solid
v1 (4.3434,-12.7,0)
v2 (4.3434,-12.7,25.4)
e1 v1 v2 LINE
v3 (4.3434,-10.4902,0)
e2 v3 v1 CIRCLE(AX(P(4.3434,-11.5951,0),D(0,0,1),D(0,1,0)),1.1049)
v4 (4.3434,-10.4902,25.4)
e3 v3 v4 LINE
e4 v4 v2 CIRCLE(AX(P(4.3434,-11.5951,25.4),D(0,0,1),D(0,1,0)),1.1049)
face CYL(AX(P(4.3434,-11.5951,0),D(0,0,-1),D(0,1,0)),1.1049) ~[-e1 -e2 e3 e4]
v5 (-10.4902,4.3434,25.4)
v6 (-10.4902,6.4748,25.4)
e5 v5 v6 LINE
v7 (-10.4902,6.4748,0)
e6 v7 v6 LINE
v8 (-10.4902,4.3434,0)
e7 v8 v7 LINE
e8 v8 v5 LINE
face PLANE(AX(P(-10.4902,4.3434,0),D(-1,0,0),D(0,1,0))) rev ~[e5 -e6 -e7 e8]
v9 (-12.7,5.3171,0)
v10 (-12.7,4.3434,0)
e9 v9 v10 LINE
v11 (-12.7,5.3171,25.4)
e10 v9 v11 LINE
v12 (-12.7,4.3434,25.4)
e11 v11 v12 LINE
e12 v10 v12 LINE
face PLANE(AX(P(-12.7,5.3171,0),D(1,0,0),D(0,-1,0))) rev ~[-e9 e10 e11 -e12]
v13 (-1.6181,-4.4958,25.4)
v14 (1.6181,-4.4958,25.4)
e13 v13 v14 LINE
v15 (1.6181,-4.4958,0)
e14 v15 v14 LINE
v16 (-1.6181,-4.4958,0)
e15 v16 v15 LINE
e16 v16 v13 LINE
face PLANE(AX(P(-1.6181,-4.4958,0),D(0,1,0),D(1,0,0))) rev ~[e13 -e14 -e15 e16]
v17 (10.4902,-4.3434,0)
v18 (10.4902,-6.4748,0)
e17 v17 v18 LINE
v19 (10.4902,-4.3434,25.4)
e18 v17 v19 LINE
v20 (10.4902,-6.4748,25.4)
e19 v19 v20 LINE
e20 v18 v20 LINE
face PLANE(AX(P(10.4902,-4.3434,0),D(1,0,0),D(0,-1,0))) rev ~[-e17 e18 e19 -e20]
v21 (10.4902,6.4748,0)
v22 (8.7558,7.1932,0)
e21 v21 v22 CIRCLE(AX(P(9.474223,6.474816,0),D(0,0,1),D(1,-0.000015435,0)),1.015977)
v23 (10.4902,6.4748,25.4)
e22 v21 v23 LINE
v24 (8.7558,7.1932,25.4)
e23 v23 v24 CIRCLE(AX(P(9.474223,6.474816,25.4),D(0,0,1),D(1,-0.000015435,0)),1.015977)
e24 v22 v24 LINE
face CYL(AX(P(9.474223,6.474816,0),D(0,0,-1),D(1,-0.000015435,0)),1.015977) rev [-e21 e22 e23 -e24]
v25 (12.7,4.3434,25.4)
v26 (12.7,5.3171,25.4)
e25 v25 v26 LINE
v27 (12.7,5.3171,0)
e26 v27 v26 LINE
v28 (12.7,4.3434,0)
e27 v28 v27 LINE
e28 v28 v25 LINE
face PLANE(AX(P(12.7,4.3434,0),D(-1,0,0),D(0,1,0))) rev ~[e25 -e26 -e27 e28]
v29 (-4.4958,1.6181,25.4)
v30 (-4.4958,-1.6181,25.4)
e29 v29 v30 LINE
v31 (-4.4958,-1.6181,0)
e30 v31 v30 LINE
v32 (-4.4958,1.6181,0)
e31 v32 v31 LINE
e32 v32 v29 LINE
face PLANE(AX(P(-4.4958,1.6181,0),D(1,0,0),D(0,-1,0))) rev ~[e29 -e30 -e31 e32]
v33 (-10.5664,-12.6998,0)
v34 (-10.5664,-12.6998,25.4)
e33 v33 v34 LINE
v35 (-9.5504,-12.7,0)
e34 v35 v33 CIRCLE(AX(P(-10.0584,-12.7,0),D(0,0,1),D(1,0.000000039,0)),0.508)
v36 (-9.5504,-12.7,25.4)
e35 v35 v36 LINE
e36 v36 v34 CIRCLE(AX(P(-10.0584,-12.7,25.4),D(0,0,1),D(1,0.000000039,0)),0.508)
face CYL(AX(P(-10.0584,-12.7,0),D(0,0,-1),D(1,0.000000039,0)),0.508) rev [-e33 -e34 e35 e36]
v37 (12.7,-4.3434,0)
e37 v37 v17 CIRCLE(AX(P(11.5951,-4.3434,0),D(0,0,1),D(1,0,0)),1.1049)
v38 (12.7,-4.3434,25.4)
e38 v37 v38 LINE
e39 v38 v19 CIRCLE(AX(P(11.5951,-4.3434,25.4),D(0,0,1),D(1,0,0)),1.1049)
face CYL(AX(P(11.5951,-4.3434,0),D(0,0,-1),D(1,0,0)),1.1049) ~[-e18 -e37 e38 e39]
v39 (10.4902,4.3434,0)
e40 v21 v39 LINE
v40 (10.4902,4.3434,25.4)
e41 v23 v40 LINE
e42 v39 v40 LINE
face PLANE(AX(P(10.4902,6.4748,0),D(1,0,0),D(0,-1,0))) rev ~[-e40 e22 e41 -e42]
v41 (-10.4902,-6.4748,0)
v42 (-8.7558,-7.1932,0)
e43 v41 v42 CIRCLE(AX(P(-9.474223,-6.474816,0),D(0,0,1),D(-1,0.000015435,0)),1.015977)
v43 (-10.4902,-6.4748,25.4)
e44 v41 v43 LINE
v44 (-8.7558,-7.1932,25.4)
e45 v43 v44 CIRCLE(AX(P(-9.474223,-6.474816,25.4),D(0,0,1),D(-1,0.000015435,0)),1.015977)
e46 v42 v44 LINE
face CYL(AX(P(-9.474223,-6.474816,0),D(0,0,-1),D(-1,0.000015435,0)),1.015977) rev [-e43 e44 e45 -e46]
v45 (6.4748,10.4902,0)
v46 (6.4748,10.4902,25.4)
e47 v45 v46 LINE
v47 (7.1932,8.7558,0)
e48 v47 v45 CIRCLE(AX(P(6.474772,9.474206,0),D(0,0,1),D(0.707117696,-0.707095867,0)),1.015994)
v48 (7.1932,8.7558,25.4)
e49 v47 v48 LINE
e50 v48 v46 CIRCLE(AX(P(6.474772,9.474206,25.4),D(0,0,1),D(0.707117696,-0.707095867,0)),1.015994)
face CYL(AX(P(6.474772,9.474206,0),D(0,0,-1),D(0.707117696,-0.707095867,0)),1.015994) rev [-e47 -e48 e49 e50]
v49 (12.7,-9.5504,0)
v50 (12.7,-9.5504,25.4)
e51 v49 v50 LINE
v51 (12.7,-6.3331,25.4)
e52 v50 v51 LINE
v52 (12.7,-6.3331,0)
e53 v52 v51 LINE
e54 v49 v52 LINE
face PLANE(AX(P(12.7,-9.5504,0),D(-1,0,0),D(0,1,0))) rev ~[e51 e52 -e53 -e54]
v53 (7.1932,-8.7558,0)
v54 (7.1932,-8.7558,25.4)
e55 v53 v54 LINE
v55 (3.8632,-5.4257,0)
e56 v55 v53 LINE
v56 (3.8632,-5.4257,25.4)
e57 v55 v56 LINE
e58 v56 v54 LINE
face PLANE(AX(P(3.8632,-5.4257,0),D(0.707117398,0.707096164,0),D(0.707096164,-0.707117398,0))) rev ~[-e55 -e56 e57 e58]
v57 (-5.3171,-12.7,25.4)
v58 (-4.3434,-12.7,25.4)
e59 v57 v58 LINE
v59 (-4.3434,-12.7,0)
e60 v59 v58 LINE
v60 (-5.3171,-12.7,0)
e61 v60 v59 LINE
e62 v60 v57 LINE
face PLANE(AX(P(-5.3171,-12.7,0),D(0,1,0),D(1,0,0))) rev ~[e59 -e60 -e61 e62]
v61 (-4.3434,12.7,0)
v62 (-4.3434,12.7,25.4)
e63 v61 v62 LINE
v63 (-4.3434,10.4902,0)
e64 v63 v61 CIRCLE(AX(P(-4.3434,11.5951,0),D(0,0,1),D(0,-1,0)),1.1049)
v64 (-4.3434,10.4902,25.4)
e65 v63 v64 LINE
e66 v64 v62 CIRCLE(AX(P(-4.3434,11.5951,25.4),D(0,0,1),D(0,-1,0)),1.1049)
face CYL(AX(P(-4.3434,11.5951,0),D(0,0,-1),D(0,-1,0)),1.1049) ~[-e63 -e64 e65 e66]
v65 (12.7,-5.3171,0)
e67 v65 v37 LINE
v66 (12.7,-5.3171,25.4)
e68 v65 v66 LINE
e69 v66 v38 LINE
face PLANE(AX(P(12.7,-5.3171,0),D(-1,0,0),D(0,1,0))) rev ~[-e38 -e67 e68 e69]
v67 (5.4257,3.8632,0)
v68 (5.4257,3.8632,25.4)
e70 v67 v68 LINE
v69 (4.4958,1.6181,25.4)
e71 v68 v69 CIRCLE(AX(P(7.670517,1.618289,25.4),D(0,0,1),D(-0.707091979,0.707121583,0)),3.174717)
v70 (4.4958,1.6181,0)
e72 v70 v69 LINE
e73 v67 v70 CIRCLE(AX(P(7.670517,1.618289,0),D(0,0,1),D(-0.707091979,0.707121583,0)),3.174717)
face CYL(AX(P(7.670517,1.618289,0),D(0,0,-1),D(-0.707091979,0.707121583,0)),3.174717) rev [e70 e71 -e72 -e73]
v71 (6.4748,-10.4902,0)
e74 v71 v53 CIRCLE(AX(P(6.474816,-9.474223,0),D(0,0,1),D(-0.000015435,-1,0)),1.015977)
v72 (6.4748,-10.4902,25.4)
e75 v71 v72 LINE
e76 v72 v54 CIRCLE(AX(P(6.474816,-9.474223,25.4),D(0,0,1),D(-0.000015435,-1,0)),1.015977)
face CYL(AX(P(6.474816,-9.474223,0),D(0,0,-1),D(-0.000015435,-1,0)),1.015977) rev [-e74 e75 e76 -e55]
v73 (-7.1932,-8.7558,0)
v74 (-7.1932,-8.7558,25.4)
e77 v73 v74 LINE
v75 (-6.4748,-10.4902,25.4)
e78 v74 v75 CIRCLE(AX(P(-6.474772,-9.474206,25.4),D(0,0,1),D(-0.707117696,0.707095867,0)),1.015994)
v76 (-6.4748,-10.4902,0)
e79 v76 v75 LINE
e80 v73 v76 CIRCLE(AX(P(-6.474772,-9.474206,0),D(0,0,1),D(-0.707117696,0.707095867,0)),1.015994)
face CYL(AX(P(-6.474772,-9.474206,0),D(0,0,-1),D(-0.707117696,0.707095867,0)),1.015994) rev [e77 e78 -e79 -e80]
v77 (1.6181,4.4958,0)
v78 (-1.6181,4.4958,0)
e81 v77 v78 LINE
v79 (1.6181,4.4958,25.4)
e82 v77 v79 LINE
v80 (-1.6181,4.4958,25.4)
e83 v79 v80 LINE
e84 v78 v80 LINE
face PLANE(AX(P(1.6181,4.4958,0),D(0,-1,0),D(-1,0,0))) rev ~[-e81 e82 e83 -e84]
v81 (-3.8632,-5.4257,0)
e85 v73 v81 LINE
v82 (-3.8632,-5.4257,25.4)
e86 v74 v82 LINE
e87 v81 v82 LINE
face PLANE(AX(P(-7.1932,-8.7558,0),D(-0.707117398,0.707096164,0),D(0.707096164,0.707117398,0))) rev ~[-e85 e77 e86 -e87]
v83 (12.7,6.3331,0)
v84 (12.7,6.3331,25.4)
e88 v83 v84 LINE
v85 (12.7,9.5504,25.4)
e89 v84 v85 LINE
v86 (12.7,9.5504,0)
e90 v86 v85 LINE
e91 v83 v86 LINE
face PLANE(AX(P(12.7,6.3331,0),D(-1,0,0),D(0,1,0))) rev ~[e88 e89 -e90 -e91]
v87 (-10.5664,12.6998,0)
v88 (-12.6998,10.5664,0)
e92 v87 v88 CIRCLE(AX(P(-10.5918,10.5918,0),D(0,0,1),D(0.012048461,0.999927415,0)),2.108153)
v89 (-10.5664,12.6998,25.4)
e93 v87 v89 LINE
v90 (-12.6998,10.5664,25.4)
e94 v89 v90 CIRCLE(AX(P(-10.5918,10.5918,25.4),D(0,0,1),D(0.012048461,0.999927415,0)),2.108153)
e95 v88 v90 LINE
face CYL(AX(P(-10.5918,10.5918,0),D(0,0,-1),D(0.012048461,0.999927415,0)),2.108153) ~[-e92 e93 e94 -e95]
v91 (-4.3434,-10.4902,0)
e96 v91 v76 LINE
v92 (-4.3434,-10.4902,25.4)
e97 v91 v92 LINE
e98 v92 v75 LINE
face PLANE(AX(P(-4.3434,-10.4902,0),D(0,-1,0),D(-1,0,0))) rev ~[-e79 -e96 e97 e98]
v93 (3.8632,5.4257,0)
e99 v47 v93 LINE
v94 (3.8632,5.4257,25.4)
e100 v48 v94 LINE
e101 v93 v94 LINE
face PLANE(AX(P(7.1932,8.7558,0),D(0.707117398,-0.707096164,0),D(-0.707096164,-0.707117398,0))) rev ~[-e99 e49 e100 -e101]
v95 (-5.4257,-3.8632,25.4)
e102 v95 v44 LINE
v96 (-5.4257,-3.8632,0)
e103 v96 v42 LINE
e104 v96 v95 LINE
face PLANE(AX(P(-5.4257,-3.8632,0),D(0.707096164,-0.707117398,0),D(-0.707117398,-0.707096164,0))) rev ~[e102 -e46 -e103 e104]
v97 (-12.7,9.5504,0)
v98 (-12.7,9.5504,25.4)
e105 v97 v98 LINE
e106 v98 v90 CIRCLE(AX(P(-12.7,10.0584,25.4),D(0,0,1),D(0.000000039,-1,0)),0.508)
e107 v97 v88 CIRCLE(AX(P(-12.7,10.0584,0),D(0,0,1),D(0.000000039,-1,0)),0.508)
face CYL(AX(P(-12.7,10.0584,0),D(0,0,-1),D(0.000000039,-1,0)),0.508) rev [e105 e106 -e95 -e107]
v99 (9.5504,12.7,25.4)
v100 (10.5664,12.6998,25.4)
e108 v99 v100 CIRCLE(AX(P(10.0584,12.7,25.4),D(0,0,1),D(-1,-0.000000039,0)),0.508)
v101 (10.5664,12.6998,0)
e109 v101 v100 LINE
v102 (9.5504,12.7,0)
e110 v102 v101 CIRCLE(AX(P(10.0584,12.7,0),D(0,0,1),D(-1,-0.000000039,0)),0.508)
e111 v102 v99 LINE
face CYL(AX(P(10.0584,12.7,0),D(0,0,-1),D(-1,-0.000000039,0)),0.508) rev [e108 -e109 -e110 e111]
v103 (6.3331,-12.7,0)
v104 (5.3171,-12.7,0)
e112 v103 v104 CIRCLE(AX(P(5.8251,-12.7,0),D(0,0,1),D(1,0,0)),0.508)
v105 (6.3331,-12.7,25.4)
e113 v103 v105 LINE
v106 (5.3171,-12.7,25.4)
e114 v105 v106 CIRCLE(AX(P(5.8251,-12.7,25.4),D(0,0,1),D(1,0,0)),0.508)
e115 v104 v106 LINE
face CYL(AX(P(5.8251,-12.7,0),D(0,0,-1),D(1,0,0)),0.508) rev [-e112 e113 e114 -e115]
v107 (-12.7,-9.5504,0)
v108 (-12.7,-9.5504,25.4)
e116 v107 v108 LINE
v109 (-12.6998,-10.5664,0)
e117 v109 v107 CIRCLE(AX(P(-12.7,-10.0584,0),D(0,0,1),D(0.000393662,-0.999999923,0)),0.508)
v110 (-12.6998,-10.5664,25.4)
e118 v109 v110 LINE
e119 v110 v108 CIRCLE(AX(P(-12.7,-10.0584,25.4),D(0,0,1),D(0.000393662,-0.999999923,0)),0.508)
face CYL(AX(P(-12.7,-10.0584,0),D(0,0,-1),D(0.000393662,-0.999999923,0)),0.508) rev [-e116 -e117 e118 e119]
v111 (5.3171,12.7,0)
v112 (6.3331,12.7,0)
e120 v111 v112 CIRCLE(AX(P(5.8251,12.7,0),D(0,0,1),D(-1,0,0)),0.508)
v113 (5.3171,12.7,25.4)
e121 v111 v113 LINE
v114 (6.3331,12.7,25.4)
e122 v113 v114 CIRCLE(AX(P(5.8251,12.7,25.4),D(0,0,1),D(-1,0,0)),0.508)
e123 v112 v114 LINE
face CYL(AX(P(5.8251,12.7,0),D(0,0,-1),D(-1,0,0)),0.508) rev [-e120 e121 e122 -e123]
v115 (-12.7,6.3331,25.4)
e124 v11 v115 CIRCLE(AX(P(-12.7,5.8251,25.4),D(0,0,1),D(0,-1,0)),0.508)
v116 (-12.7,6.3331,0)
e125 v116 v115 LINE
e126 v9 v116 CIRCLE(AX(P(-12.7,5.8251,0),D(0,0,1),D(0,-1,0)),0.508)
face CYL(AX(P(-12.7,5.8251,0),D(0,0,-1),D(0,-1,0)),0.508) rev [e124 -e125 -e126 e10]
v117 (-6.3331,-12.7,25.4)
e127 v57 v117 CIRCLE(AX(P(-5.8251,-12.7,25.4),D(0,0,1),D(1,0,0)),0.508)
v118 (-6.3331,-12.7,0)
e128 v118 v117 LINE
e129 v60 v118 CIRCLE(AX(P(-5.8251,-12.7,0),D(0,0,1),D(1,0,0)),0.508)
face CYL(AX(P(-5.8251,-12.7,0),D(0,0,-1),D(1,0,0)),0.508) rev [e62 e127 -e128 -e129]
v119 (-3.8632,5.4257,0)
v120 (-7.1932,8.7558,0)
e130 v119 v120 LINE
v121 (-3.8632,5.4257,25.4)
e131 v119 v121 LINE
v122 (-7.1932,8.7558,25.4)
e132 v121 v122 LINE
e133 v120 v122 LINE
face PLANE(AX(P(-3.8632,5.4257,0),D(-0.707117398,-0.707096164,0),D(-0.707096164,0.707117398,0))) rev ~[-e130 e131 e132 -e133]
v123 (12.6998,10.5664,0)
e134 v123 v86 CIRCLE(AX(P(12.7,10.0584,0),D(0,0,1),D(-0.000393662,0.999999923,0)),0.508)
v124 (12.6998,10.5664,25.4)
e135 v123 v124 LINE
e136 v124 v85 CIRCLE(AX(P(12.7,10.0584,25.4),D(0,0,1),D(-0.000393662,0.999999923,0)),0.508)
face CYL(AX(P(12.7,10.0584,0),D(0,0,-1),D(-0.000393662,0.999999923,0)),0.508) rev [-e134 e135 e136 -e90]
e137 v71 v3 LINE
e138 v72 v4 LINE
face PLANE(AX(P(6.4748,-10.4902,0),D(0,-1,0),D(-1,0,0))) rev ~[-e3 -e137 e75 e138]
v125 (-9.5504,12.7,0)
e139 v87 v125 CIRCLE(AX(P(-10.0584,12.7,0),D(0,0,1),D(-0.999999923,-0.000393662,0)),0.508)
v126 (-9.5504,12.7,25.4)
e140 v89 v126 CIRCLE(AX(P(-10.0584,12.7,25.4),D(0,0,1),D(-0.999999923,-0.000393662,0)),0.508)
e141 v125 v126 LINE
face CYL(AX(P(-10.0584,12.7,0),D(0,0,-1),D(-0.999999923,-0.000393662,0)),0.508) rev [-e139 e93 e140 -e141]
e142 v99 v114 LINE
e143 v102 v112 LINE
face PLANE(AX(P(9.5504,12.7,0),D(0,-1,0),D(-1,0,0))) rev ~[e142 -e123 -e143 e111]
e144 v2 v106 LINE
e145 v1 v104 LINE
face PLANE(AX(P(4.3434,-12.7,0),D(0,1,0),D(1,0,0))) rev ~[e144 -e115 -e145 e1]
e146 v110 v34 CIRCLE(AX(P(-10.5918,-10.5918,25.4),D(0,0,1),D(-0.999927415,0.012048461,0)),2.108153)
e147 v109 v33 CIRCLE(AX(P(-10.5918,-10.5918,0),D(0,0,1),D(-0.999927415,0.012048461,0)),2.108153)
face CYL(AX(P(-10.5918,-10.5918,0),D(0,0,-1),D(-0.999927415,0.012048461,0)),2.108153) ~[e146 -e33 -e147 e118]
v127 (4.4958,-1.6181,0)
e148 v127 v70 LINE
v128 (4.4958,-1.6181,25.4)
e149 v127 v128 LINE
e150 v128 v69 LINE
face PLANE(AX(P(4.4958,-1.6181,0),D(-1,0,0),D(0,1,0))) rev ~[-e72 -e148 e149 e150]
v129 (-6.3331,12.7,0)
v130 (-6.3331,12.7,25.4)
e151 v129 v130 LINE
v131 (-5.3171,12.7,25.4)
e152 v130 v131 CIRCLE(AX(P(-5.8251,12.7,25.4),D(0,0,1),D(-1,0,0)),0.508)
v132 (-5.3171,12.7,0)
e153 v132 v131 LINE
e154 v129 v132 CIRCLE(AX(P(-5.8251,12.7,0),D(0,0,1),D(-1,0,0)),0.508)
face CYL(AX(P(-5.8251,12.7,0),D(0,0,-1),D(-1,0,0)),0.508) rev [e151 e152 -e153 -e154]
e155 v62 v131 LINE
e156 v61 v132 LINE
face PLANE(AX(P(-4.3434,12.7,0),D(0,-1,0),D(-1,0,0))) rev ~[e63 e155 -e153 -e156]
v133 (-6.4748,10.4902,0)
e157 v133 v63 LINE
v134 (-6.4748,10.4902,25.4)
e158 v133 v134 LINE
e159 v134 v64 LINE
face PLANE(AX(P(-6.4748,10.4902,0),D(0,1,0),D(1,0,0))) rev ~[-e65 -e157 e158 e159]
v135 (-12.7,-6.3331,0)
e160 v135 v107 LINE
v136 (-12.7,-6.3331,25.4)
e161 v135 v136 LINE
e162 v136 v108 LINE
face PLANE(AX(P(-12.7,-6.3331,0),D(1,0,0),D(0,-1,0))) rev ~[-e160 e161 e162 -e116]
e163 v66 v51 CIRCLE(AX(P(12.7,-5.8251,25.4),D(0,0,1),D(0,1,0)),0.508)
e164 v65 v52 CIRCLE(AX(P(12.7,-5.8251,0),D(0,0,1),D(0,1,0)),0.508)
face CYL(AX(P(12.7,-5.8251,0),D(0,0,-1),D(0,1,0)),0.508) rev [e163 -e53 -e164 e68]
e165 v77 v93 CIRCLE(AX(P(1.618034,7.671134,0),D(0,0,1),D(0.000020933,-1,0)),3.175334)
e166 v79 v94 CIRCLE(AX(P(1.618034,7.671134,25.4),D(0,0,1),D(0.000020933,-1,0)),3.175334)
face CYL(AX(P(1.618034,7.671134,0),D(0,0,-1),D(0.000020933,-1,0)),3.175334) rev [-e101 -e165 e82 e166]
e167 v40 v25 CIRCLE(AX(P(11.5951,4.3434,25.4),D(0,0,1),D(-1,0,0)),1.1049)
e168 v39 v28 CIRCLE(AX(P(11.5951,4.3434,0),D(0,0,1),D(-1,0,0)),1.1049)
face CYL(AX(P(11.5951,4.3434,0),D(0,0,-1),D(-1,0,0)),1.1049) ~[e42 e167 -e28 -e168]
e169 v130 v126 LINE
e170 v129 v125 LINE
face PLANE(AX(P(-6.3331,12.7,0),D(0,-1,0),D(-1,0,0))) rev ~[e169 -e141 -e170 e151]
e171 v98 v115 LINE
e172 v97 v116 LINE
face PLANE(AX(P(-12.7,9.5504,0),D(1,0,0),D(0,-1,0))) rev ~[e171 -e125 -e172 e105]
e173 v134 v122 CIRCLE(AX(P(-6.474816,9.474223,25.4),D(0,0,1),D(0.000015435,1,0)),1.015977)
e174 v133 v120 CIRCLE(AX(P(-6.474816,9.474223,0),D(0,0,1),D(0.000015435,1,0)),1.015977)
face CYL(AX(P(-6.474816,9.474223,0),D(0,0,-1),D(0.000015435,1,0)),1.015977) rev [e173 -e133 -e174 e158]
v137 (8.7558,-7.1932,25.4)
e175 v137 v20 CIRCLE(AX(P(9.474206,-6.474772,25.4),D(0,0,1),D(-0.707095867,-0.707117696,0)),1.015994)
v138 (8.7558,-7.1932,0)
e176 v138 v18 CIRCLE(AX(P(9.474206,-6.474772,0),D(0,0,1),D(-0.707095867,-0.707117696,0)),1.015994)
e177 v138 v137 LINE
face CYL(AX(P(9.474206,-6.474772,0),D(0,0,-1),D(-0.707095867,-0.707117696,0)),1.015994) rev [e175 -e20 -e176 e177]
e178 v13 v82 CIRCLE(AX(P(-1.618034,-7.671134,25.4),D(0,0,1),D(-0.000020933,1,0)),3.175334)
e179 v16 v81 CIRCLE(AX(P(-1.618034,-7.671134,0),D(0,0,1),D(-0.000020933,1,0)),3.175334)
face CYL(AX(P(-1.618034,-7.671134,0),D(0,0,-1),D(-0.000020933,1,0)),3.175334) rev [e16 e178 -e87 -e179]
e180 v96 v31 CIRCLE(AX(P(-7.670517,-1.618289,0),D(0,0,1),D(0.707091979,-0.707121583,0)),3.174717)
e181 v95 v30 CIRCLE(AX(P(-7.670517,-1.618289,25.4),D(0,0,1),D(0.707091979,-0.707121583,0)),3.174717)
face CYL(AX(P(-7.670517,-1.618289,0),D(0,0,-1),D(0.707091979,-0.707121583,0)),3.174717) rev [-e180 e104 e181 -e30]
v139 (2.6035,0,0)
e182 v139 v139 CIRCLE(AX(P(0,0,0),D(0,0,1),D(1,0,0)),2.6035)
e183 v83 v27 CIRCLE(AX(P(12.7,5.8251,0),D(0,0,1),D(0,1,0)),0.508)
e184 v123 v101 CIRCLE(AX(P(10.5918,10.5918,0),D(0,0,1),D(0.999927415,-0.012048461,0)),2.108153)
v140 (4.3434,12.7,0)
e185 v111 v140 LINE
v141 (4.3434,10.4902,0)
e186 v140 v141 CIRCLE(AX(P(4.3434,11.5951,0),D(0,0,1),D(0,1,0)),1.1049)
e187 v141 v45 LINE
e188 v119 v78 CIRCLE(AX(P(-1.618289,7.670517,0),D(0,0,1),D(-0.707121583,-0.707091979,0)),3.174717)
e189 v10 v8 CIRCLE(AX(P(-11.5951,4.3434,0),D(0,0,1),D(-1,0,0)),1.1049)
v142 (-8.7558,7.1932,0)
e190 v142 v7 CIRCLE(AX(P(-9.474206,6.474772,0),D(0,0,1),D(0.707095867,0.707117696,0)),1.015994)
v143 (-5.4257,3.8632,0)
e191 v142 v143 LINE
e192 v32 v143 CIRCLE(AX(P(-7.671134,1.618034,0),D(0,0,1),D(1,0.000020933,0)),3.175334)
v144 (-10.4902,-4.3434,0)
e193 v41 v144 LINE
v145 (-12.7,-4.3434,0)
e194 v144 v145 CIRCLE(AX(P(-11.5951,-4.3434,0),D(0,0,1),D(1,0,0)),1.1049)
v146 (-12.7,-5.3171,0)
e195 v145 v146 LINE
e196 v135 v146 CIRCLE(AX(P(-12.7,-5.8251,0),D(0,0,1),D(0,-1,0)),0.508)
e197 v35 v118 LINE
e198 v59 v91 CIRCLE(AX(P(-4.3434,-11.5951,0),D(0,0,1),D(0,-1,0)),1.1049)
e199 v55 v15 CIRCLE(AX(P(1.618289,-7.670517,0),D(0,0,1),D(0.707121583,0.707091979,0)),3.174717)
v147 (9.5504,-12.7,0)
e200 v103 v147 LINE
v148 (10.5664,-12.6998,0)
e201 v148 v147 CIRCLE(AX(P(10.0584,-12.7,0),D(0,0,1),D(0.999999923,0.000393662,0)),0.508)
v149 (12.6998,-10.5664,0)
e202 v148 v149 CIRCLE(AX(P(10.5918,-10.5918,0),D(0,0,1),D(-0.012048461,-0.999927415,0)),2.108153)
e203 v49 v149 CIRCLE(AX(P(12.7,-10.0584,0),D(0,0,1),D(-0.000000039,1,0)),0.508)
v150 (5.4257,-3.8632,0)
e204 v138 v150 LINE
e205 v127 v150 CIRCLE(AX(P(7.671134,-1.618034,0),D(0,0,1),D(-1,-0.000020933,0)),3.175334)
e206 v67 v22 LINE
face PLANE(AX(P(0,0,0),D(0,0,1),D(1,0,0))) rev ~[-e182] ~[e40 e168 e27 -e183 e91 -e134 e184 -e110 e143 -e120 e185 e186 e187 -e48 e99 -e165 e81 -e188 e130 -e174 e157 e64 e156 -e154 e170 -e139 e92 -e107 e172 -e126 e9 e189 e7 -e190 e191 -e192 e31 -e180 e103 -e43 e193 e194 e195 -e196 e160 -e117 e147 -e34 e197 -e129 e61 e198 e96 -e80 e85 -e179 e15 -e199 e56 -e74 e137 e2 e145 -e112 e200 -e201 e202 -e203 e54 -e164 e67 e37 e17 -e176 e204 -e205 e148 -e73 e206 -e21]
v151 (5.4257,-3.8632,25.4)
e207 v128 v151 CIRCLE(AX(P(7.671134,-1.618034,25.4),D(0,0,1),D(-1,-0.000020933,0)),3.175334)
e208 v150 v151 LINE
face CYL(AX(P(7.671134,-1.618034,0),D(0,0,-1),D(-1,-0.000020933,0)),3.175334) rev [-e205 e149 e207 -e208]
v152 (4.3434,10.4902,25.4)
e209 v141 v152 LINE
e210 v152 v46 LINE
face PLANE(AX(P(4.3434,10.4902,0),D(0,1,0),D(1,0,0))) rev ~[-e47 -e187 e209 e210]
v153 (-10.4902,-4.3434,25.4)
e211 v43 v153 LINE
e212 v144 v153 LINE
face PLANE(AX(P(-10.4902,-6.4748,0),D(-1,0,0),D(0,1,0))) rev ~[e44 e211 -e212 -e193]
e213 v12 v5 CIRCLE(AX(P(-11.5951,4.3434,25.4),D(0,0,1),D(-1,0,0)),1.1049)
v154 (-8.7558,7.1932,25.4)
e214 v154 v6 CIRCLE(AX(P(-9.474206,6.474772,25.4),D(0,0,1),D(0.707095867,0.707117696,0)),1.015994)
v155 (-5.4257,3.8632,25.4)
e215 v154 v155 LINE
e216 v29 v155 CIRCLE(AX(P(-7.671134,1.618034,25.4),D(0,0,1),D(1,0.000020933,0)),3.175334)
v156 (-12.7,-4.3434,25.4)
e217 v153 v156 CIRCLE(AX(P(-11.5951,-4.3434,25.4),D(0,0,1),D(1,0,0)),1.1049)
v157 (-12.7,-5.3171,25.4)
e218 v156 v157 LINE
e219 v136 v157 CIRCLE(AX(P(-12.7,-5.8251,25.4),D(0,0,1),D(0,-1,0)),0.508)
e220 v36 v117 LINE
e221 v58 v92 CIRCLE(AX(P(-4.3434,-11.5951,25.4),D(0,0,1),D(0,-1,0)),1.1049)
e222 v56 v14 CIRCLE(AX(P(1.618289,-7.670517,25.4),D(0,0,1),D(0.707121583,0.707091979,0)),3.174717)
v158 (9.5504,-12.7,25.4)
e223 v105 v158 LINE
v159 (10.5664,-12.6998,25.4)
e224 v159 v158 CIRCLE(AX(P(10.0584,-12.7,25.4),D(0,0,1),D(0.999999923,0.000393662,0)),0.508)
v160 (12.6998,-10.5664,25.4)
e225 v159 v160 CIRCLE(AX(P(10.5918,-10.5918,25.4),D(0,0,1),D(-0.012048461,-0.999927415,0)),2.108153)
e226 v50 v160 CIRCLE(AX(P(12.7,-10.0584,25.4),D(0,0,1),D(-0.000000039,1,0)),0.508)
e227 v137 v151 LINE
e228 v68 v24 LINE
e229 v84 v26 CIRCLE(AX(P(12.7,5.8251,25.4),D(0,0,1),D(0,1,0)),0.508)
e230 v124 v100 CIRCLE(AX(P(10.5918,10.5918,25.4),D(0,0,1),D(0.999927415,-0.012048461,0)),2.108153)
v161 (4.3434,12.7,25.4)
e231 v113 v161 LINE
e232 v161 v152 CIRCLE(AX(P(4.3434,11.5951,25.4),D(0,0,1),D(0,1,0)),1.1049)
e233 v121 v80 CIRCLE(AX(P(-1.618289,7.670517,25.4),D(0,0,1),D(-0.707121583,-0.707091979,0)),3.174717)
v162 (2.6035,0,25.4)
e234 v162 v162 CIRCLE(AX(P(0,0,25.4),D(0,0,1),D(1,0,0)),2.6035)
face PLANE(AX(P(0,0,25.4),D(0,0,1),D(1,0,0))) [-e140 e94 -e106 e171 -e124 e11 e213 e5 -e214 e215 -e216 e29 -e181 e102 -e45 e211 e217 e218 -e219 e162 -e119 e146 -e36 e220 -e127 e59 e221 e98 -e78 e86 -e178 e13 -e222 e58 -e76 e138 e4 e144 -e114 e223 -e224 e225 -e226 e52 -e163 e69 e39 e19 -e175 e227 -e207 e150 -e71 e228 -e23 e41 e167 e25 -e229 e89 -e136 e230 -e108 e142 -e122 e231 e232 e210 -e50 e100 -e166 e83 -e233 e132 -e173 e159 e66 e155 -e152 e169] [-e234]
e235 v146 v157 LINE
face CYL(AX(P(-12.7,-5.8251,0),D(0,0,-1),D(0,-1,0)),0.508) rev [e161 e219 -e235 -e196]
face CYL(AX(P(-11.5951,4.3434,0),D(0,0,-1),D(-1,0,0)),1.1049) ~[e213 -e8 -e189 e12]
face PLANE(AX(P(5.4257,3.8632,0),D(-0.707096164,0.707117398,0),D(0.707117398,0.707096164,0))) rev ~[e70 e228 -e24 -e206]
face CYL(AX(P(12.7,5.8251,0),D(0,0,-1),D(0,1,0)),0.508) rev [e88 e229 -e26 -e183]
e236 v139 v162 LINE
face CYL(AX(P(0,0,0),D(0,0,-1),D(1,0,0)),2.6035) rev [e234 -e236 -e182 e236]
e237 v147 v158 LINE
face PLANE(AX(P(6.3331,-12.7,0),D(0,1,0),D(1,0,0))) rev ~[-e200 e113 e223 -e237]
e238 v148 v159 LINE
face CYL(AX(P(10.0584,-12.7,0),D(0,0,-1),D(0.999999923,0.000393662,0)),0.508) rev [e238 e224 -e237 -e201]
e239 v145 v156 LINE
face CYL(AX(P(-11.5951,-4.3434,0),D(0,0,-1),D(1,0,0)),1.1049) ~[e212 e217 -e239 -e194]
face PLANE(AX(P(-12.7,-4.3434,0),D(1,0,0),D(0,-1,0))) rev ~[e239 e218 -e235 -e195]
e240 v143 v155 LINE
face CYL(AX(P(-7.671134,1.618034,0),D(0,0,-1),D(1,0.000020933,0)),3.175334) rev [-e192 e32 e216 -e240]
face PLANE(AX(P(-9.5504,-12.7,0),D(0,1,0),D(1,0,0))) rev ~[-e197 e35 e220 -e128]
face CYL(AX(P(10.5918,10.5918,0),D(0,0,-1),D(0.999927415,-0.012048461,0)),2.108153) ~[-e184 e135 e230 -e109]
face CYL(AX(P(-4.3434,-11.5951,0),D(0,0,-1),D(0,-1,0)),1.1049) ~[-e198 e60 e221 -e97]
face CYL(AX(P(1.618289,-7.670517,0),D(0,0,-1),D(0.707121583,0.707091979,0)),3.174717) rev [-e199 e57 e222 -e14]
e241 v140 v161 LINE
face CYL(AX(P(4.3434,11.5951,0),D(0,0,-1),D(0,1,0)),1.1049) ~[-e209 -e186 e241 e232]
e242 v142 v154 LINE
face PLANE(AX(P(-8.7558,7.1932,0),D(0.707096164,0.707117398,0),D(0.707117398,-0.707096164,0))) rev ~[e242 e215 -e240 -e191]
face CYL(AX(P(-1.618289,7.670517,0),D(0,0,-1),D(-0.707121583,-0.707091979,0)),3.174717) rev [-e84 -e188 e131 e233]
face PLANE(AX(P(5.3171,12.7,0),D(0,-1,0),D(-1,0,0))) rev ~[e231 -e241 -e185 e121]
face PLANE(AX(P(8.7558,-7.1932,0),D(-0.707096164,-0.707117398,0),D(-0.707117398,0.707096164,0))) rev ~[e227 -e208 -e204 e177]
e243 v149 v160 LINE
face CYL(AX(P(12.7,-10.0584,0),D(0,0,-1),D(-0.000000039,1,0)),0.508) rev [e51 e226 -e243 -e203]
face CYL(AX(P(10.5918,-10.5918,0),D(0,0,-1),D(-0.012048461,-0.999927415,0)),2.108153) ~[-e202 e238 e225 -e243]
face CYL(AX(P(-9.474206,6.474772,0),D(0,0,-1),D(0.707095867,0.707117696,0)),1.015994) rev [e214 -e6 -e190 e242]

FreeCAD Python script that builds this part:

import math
import FreeCAD as App
import Part
import Sketcher
Q = App.Units.Quantity

doc = App.newDocument("Part")
body = doc.addObject("PartDesign::Body", "Body")

sketch1 = body.newObject("Sketcher::SketchObject", "Sketch")
sketch1.AttachmentSupport = (doc.getObject("XY_Plane"), [""])
sketch1.MapMode = "FlatFace"
sketch1.addGeometry(Part.ArcOfCircle(Part.Circle(App.Vector(-12.7, -10.1, 0), App.Vector(0, 0, 1), 0.5), math.radians(-90), math.radians(90)), False)
sketch1.addGeometry(Part.ArcOfCircle(Part.Circle(App.Vector(-10.6, -10.6, 0), App.Vector(0, 0, 1), 2.1), math.radians(179), math.radians(271)), False)
sketch1.addGeometry(Part.ArcOfCircle(Part.Circle(App.Vector(-10.1, -12.7, 0), App.Vector(0, 0, 1), 0.5), math.radians(0), math.radians(180)), False)
sketch1.addGeometry(Part.LineSegment(App.Vector(-9.6, -12.7, 0), App.Vector(-6.3, -12.7, 0)), False)
sketch1.addGeometry(Part.ArcOfCircle(Part.Circle(App.Vector(-5.8, -12.7, 0), App.Vector(0, 0, 1), 0.5), math.radians(0), math.radians(180)), False)
sketch1.addGeometry(Part.LineSegment(App.Vector(-5.3, -12.7, 0), App.Vector(-4.3, -12.7, 0)), False)
sketch1.addGeometry(Part.ArcOfCircle(Part.Circle(App.Vector(-4.3, -11.6, 0), App.Vector(0, 0, 1), 1.1), math.radians(-90), math.radians(90)), False)
sketch1.addGeometry(Part.LineSegment(App.Vector(-4.3, -10.5, 0), App.Vector(-6.5, -10.5, 0)), False)
sketch1.addGeometry(Part.ArcOfCircle(Part.Circle(App.Vector(-6.5, -9.5, 0), App.Vector(0, 0, 1), 1), math.radians(135), math.radians(270)), False)
sketch1.addGeometry(Part.LineSegment(App.Vector(-7.2, -8.8, 0), App.Vector(-3.9, -5.4, 0)), False)
sketch1.addGeometry(Part.ArcOfCircle(Part.Circle(App.Vector(-1.6, -7.7, 0), App.Vector(0, 0, 1), 3.2), math.radians(90), math.radians(135)), False)
sketch1.addGeometry(Part.LineSegment(App.Vector(-1.6, -4.5, 0), App.Vector(1.6, -4.5, 0)), False)
sketch1.addGeometry(Part.ArcOfCircle(Part.Circle(App.Vector(1.6, -7.7, 0), App.Vector(0, 0, 1), 3.2), math.radians(45), math.radians(90)), False)
sketch1.addGeometry(Part.LineSegment(App.Vector(3.9, -5.4, 0), App.Vector(7.2, -8.8, 0)), False)
sketch1.addGeometry(Part.ArcOfCircle(Part.Circle(App.Vector(6.5, -9.5, 0), App.Vector(0, 0, 1), 1), math.radians(-90), math.radians(45)), False)
sketch1.addGeometry(Part.LineSegment(App.Vector(6.5, -10.5, 0), App.Vector(4.3, -10.5, 0)), False)
sketch1.addGeometry(Part.ArcOfCircle(Part.Circle(App.Vector(4.3, -11.6, 0), App.Vector(0, 0, 1), 1.1), math.radians(90), math.radians(270)), False)
sketch1.addGeometry(Part.LineSegment(App.Vector(4.3, -12.7, 0), App.Vector(5.3, -12.7, 0)), False)
sketch1.addGeometry(Part.ArcOfCircle(Part.Circle(App.Vector(5.8, -12.7, 0), App.Vector(0, 0, 1), 0.5), math.radians(0), math.radians(180)), False)
sketch1.addGeometry(Part.LineSegment(App.Vector(6.3, -12.7, 0), App.Vector(9.6, -12.7, 0)), False)
sketch1.addGeometry(Part.ArcOfCircle(Part.Circle(App.Vector(10.1, -12.7, 0), App.Vector(0, 0, 1), 0.5), math.radians(0), math.radians(180)), False)
sketch1.addGeometry(Part.ArcOfCircle(Part.Circle(App.Vector(10.6, -10.6, 0), App.Vector(0, 0, 1), 2.1), math.radians(-91), math.radians(1)), False)
sketch1.addGeometry(Part.ArcOfCircle(Part.Circle(App.Vector(12.7, -10.1, 0), App.Vector(0, 0, 1), 0.5), math.radians(90), math.radians(270)), False)
sketch1.addGeometry(Part.LineSegment(App.Vector(12.7, -9.6, 0), App.Vector(12.7, -6.3, 0)), False)
sketch1.addGeometry(Part.ArcOfCircle(Part.Circle(App.Vector(12.7, -5.8, 0), App.Vector(0, 0, 1), 0.5), math.radians(90), math.radians(270)), False)
sketch1.addGeometry(Part.LineSegment(App.Vector(12.7, -5.3, 0), App.Vector(12.7, -4.3, 0)), False)
sketch1.addGeometry(Part.ArcOfCircle(Part.Circle(App.Vector(11.6, -4.3, 0), App.Vector(0, 0, 1), 1.1), math.radians(0), math.radians(180)), False)
sketch1.addGeometry(Part.LineSegment(App.Vector(10.5, -4.3, 0), App.Vector(10.5, -6.5, 0)), False)
sketch1.addGeometry(Part.ArcOfCircle(Part.Circle(App.Vector(9.5, -6.5, 0), App.Vector(0, 0, 1), 1), math.radians(-135), math.radians(0)), False)
sketch1.addGeometry(Part.LineSegment(App.Vector(8.8, -7.2, 0), App.Vector(5.4, -3.9, 0)), False)
sketch1.addGeometry(Part.ArcOfCircle(Part.Circle(App.Vector(7.7, -1.6, 0), App.Vector(0, 0, 1), 3.2), math.radians(180), math.radians(225)), False)
sketch1.addGeometry(Part.LineSegment(App.Vector(4.5, -1.6, 0), App.Vector(4.5, 1.6, 0)), False)
sketch1.addGeometry(Part.ArcOfCircle(Part.Circle(App.Vector(7.7, 1.6, 0), App.Vector(0, 0, 1), 3.2), math.radians(135), math.radians(180)), False)
sketch1.addGeometry(Part.LineSegment(App.Vector(5.4, 3.9, 0), App.Vector(8.8, 7.2, 0)), False)
sketch1.addGeometry(Part.ArcOfCircle(Part.Circle(App.Vector(9.5, 6.5, 0), App.Vector(0, 0, 1), 1), math.radians(0), math.radians(135)), False)
sketch1.addGeometry(Part.LineSegment(App.Vector(10.5, 6.5, 0), App.Vector(10.5, 4.3, 0)), False)
sketch1.addGeometry(Part.ArcOfCircle(Part.Circle(App.Vector(11.6, 4.3, 0), App.Vector(0, 0, 1), 1.1), math.radians(180), math.radians(360)), False)
sketch1.addGeometry(Part.LineSegment(App.Vector(12.7, 4.3, 0), App.Vector(12.7, 5.3, 0)), False)
sketch1.addGeometry(Part.ArcOfCircle(Part.Circle(App.Vector(12.7, 5.8, 0), App.Vector(0, 0, 1), 0.5), math.radians(90), math.radians(270)), False)
sketch1.addGeometry(Part.LineSegment(App.Vector(12.7, 6.3, 0), App.Vector(12.7, 9.6, 0)), False)
sketch1.addGeometry(Part.ArcOfCircle(Part.Circle(App.Vector(12.7, 10.1, 0), App.Vector(0, 0, 1), 0.5), math.radians(90), math.radians(270)), False)
sketch1.addGeometry(Part.ArcOfCircle(Part.Circle(App.Vector(10.6, 10.6, 0), App.Vector(0, 0, 1), 2.1), math.radians(-1), math.radians(91)), False)
sketch1.addGeometry(Part.ArcOfCircle(Part.Circle(App.Vector(10.1, 12.7, 0), App.Vector(0, 0, 1), 0.5), math.radians(180), math.radians(360)), False)
sketch1.addGeometry(Part.LineSegment(App.Vector(9.6, 12.7, 0), App.Vector(6.3, 12.7, 0)), False)
sketch1.addGeometry(Part.ArcOfCircle(Part.Circle(App.Vector(5.8, 12.7, 0), App.Vector(0, 0, 1), 0.5), math.radians(180), math.radians(360)), False)
sketch1.addGeometry(Part.LineSegment(App.Vector(5.3, 12.7, 0), App.Vector(4.3, 12.7, 0)), False)
sketch1.addGeometry(Part.ArcOfCircle(Part.Circle(App.Vector(4.3, 11.6, 0), App.Vector(0, 0, 1), 1.1), math.radians(90), math.radians(270)), False)
sketch1.addGeometry(Part.LineSegment(App.Vector(4.3, 10.5, 0), App.Vector(6.5, 10.5, 0)), False)
sketch1.addGeometry(Part.ArcOfCircle(Part.Circle(App.Vector(6.5, 9.5, 0), App.Vector(0, 0, 1), 1), math.radians(-45), math.radians(90)), False)
sketch1.addGeometry(Part.LineSegment(App.Vector(7.2, 8.8, 0), App.Vector(3.9, 5.4, 0)), False)
sketch1.addGeometry(Part.ArcOfCircle(Part.Circle(App.Vector(1.6, 7.7, 0), App.Vector(0, 0, 1), 3.2), math.radians(-90), math.radians(-45)), False)
sketch1.addGeometry(Part.LineSegment(App.Vector(1.6, 4.5, 0), App.Vector(-1.6, 4.5, 0)), False)
sketch1.addGeometry(Part.ArcOfCircle(Part.Circle(App.Vector(-1.6, 7.7, 0), App.Vector(0, 0, 1), 3.2), math.radians(-135), math.radians(-90)), False)
sketch1.addGeometry(Part.LineSegment(App.Vector(-3.9, 5.4, 0), App.Vector(-7.2, 8.8, 0)), False)
sketch1.addGeometry(Part.ArcOfCircle(Part.Circle(App.Vector(-6.5, 9.5, 0), App.Vector(0, 0, 1), 1), math.radians(90), math.radians(225)), False)
sketch1.addGeometry(Part.LineSegment(App.Vector(-6.5, 10.5, 0), App.Vector(-4.3, 10.5, 0)), False)
sketch1.addGeometry(Part.ArcOfCircle(Part.Circle(App.Vector(-4.3, 11.6, 0), App.Vector(0, 0, 1), 1.1), math.radians(-90), math.radians(90)), False)
sketch1.addGeometry(Part.LineSegment(App.Vector(-4.3, 12.7, 0), App.Vector(-5.3, 12.7, 0)), False)
sketch1.addGeometry(Part.ArcOfCircle(Part.Circle(App.Vector(-5.8, 12.7, 0), App.Vector(0, 0, 1), 0.5), math.radians(180), math.radians(360)), False)
sketch1.addGeometry(Part.LineSegment(App.Vector(-6.3, 12.7, 0), App.Vector(-9.6, 12.7, 0)), False)
sketch1.addGeometry(Part.ArcOfCircle(Part.Circle(App.Vector(-10.1, 12.7, 0), App.Vector(0, 0, 1), 0.5), math.radians(-180), math.radians(0)), False)
sketch1.addGeometry(Part.ArcOfCircle(Part.Circle(App.Vector(-10.6, 10.6, 0), App.Vector(0, 0, 1), 2.1), math.radians(89), math.radians(181)), False)
sketch1.addGeometry(Part.ArcOfCircle(Part.Circle(App.Vector(-12.7, 10.1, 0), App.Vector(0, 0, 1), 0.5), math.radians(-90), math.radians(90)), False)
sketch1.addGeometry(Part.LineSegment(App.Vector(-12.7, 9.6, 0), App.Vector(-12.7, 6.3, 0)), False)
sketch1.addGeometry(Part.ArcOfCircle(Part.Circle(App.Vector(-12.7, 5.8, 0), App.Vector(0, 0, 1), 0.5), math.radians(-90), math.radians(90)), False)
sketch1.addGeometry(Part.LineSegment(App.Vector(-12.7, 5.3, 0), App.Vector(-12.7, 4.3, 0)), False)
sketch1.addGeometry(Part.ArcOfCircle(Part.Circle(App.Vector(-11.6, 4.3, 0), App.Vector(0, 0, 1), 1.1), math.radians(180), math.radians(360)), False)
sketch1.addGeometry(Part.LineSegment(App.Vector(-10.5, 4.3, 0), App.Vector(-10.5, 6.5, 0)), False)
sketch1.addGeometry(Part.ArcOfCircle(Part.Circle(App.Vector(-9.5, 6.5, 0), App.Vector(0, 0, 1), 1), math.radians(45), math.radians(180)), False)
sketch1.addGeometry(Part.LineSegment(App.Vector(-8.8, 7.2, 0), App.Vector(-5.4, 3.9, 0)), False)
sketch1.addGeometry(Part.ArcOfCircle(Part.Circle(App.Vector(-7.7, 1.6, 0), App.Vector(0, 0, 1), 3.2), math.radians(0), math.radians(45)), False)
sketch1.addGeometry(Part.LineSegment(App.Vector(-4.5, 1.6, 0), App.Vector(-4.5, -1.6, 0)), False)
sketch1.addGeometry(Part.ArcOfCircle(Part.Circle(App.Vector(-7.7, -1.6, 0), App.Vector(0, 0, 1), 3.2), math.radians(-45), math.radians(0)), False)
sketch1.addGeometry(Part.LineSegment(App.Vector(-5.4, -3.9, 0), App.Vector(-8.8, -7.2, 0)), False)
sketch1.addGeometry(Part.ArcOfCircle(Part.Circle(App.Vector(-9.5, -6.5, 0), App.Vector(0, 0, 1), 1), math.radians(180), math.radians(315)), False)
sketch1.addGeometry(Part.LineSegment(App.Vector(-10.5, -6.5, 0), App.Vector(-10.5, -4.3, 0)), False)
sketch1.addGeometry(Part.ArcOfCircle(Part.Circle(App.Vector(-11.6, -4.3, 0), App.Vector(0, 0, 1), 1.1), math.radians(0), math.radians(180)), False)
sketch1.addGeometry(Part.LineSegment(App.Vector(-12.7, -4.3, 0), App.Vector(-12.7, -5.3, 0)), False)
sketch1.addGeometry(Part.ArcOfCircle(Part.Circle(App.Vector(-12.7, -5.8, 0), App.Vector(0, 0, 1), 0.5), math.radians(-90), math.radians(90)), False)
sketch1.addGeometry(Part.LineSegment(App.Vector(-12.7, -6.3, 0), App.Vector(-12.7, -9.6, 0)), False)
sketch1.addGeometry(Part.Circle(App.Vector(0, 0, 0), App.Vector(0, 0, 1), 2.6), False)
sketch1.addConstraint(Sketcher.Constraint("Coincident", 0, 1, 1, 1))
sketch1.addConstraint(Sketcher.Constraint("Coincident", 1, 2, 2, 2))
sketch1.addConstraint(Sketcher.Constraint("Coincident", 2, 1, 3, 1))
sketch1.addConstraint(Sketcher.Constraint("Coincident", 3, 2, 4, 2))
sketch1.addConstraint(Sketcher.Constraint("Coincident", 4, 1, 5, 1))
sketch1.addConstraint(Sketcher.Constraint("Tangent", 5, 2, 6, 1))
sketch1.addConstraint(Sketcher.Constraint("Tangent", 6, 2, 7, 1))
sketch1.addConstraint(Sketcher.Constraint("Tangent", 7, 2, 8, 2))
sketch1.addConstraint(Sketcher.Constraint("Tangent", 8, 1, 9, 1))
sketch1.addConstraint(Sketcher.Constraint("Tangent", 9, 2, 10, 2))
sketch1.addConstraint(Sketcher.Constraint("Tangent", 10, 1, 11, 1))
sketch1.addConstraint(Sketcher.Constraint("Tangent", 11, 2, 12, 2))
sketch1.addConstraint(Sketcher.Constraint("Tangent", 12, 1, 13, 1))
sketch1.addConstraint(Sketcher.Constraint("Tangent", 13, 2, 14, 2))
sketch1.addConstraint(Sketcher.Constraint("Tangent", 14, 1, 15, 1))
sketch1.addConstraint(Sketcher.Constraint("Tangent", 15, 2, 16, 1))
sketch1.addConstraint(Sketcher.Constraint("Tangent", 16, 2, 17, 1))
sketch1.addConstraint(Sketcher.Constraint("Coincident", 17, 2, 18, 2))
sketch1.addConstraint(Sketcher.Constraint("Coincident", 18, 1, 19, 1))
sketch1.addConstraint(Sketcher.Constraint("Coincident", 19, 2, 20, 2))
sketch1.addConstraint(Sketcher.Constraint("Coincident", 20, 1, 21, 1))
sketch1.addConstraint(Sketcher.Constraint("Coincident", 21, 2, 22, 2))
sketch1.addConstraint(Sketcher.Constraint("Coincident", 22, 1, 23, 1))
sketch1.addConstraint(Sketcher.Constraint("Coincident", 23, 2, 24, 2))
sketch1.addConstraint(Sketcher.Constraint("Coincident", 24, 1, 25, 1))
sketch1.addConstraint(Sketcher.Constraint("Tangent", 25, 2, 26, 1))
sketch1.addConstraint(Sketcher.Constraint("Tangent", 26, 2, 27, 1))
sketch1.addConstraint(Sketcher.Constraint("Tangent", 27, 2, 28, 2))
sketch1.addConstraint(Sketcher.Constraint("Tangent", 28, 1, 29, 1))
sketch1.addConstraint(Sketcher.Constraint("Tangent", 29, 2, 30, 2))
sketch1.addConstraint(Sketcher.Constraint("Tangent", 30, 1, 31, 1))
sketch1.addConstraint(Sketcher.Constraint("Tangent", 31, 2, 32, 2))
sketch1.addConstraint(Sketcher.Constraint("Tangent", 32, 1, 33, 1))
sketch1.addConstraint(Sketcher.Constraint("Tangent", 33, 2, 34, 2))
sketch1.addConstraint(Sketcher.Constraint("Tangent", 34, 1, 35, 1))
sketch1.addConstraint(Sketcher.Constraint("Tangent", 35, 2, 36, 1))
sketch1.addConstraint(Sketcher.Constraint("Tangent", 36, 2, 37, 1))
sketch1.addConstraint(Sketcher.Constraint("Coincident", 37, 2, 38, 2))
sketch1.addConstraint(Sketcher.Constraint("Coincident", 38, 1, 39, 1))
sketch1.addConstraint(Sketcher.Constraint("Coincident", 39, 2, 40, 2))
sketch1.addConstraint(Sketcher.Constraint("Coincident", 40, 1, 41, 1))
sketch1.addConstraint(Sketcher.Constraint("Coincident", 41, 2, 42, 2))
sketch1.addConstraint(Sketcher.Constraint("Coincident", 42, 1, 43, 1))
sketch1.addConstraint(Sketcher.Constraint("Coincident", 43, 2, 44, 2))
sketch1.addConstraint(Sketcher.Constraint("Coincident", 44, 1, 45, 1))
sketch1.addConstraint(Sketcher.Constraint("Tangent", 45, 2, 46, 1))
sketch1.addConstraint(Sketcher.Constraint("Tangent", 46, 2, 47, 1))
sketch1.addConstraint(Sketcher.Constraint("Tangent", 47, 2, 48, 2))
sketch1.addConstraint(Sketcher.Constraint("Tangent", 48, 1, 49, 1))
sketch1.addConstraint(Sketcher.Constraint("Tangent", 49, 2, 50, 2))
sketch1.addConstraint(Sketcher.Constraint("Tangent", 50, 1, 51, 1))
sketch1.addConstraint(Sketcher.Constraint("Tangent", 51, 2, 52, 2))
sketch1.addConstraint(Sketcher.Constraint("Tangent", 52, 1, 53, 1))
sketch1.addConstraint(Sketcher.Constraint("Tangent", 53, 2, 54, 2))
sketch1.addConstraint(Sketcher.Constraint("Tangent", 54, 1, 55, 1))
sketch1.addConstraint(Sketcher.Constraint("Tangent", 55, 2, 56, 1))
sketch1.addConstraint(Sketcher.Constraint("Tangent", 56, 2, 57, 1))
sketch1.addConstraint(Sketcher.Constraint("Coincident", 57, 2, 58, 2))
sketch1.addConstraint(Sketcher.Constraint("Coincident", 58, 1, 59, 1))
sketch1.addConstraint(Sketcher.Constraint("Coincident", 59, 2, 60, 2))
sketch1.addConstraint(Sketcher.Constraint("Coincident", 60, 1, 61, 1))
sketch1.addConstraint(Sketcher.Constraint("Coincident", 61, 2, 62, 2))
sketch1.addConstraint(Sketcher.Constraint("Coincident", 62, 1, 63, 1))
sketch1.addConstraint(Sketcher.Constraint("Coincident", 63, 2, 64, 2))
sketch1.addConstraint(Sketcher.Constraint("Coincident", 64, 1, 65, 1))
sketch1.addConstraint(Sketcher.Constraint("Tangent", 65, 2, 66, 1))
sketch1.addConstraint(Sketcher.Constraint("Tangent", 66, 2, 67, 1))
sketch1.addConstraint(Sketcher.Constraint("Tangent", 67, 2, 68, 2))
sketch1.addConstraint(Sketcher.Constraint("Tangent", 68, 1, 69, 1))
sketch1.addConstraint(Sketcher.Constraint("Tangent", 69, 2, 70, 2))
sketch1.addConstraint(Sketcher.Constraint("Tangent", 70, 1, 71, 1))
sketch1.addConstraint(Sketcher.Constraint("Tangent", 71, 2, 72, 2))
sketch1.addConstraint(Sketcher.Constraint("Tangent", 72, 1, 73, 1))
sketch1.addConstraint(Sketcher.Constraint("Tangent", 73, 2, 74, 2))
sketch1.addConstraint(Sketcher.Constraint("Tangent", 74, 1, 75, 1))
sketch1.addConstraint(Sketcher.Constraint("Tangent", 75, 2, 76, 1))
sketch1.addConstraint(Sketcher.Constraint("Tangent", 76, 2, 77, 1))
sketch1.addConstraint(Sketcher.Constraint("Coincident", 77, 2, 78, 2))
sketch1.addConstraint(Sketcher.Constraint("Coincident", 78, 1, 79, 1))
sketch1.addConstraint(Sketcher.Constraint("Coincident", 79, 2, 0, 2))
sketch1.addConstraint(Sketcher.Constraint("Horizontal", 3))
sketch1.addConstraint(Sketcher.Constraint("Horizontal", 5))
sketch1.addConstraint(Sketcher.Constraint("Horizontal", 7))
sketch1.addConstraint(Sketcher.Constraint("Horizontal", 11))
sketch1.addConstraint(Sketcher.Constraint("Horizontal", 15))
sketch1.addConstraint(Sketcher.Constraint("Horizontal", 17))
sketch1.addConstraint(Sketcher.Constraint("Horizontal", 19))
sketch1.addConstraint(Sketcher.Constraint("Vertical", 23))
sketch1.addConstraint(Sketcher.Constraint("Vertical", 25))
sketch1.addConstraint(Sketcher.Constraint("Vertical", 27))
sketch1.addConstraint(Sketcher.Constraint("Vertical", 31))
sketch1.addConstraint(Sketcher.Constraint("Vertical", 35))
sketch1.addConstraint(Sketcher.Constraint("Vertical", 37))
sketch1.addConstraint(Sketcher.Constraint("Vertical", 39))
sketch1.addConstraint(Sketcher.Constraint("Horizontal", 43))
sketch1.addConstraint(Sketcher.Constraint("Horizontal", 45))
sketch1.addConstraint(Sketcher.Constraint("Horizontal", 47))
sketch1.addConstraint(Sketcher.Constraint("Horizontal", 51))
sketch1.addConstraint(Sketcher.Constraint("Horizontal", 55))
sketch1.addConstraint(Sketcher.Constraint("Horizontal", 57))
sketch1.addConstraint(Sketcher.Constraint("Horizontal", 59))
sketch1.addConstraint(Sketcher.Constraint("Vertical", 63))
sketch1.addConstraint(Sketcher.Constraint("Vertical", 65))
sketch1.addConstraint(Sketcher.Constraint("Vertical", 67))
sketch1.addConstraint(Sketcher.Constraint("Vertical", 71))
sketch1.addConstraint(Sketcher.Constraint("Vertical", 75))
sketch1.addConstraint(Sketcher.Constraint("Vertical", 77))
sketch1.addConstraint(Sketcher.Constraint("Vertical", 79))
sketch1.addConstraint(Sketcher.Constraint("Coincident", 80, 3, -1, 1))
sketch1.addConstraint(Sketcher.Constraint("Equal", 0, 2))
sketch1.addConstraint(Sketcher.Constraint("Equal", 2, 4))
sketch1.addConstraint(Sketcher.Constraint("Equal", 10, 12))
sketch1.addConstraint(Sketcher.Constraint("Equal", 8, 14))
sketch1.addConstraint(Sketcher.Constraint("Equal", 6, 16))
sketch1.addConstraint(Sketcher.Constraint("Equal", 4, 18))
sketch1.addConstraint(Sketcher.Constraint("Equal", 18, 20))
sketch1.addConstraint(Sketcher.Constraint("Equal", 1, 21))
sketch1.addConstraint(Sketcher.Constraint("Equal", 20, 22))
sketch1.addConstraint(Sketcher.Constraint("Equal", 22, 24))
sketch1.addConstraint(Sketcher.Constraint("Equal", 16, 26))
sketch1.addConstraint(Sketcher.Constraint("Equal", 14, 28))
sketch1.addConstraint(Sketcher.Constraint("Equal", 12, 30))
sketch1.addConstraint(Sketcher.Constraint("Equal", 30, 32))
sketch1.addConstraint(Sketcher.Constraint("Equal", 28, 34))
sketch1.addConstraint(Sketcher.Constraint("Equal", 26, 36))
sketch1.addConstraint(Sketcher.Constraint("Equal", 24, 38))
sketch1.addConstraint(Sketcher.Constraint("Equal", 38, 40))
sketch1.addConstraint(Sketcher.Constraint("Equal", 21, 41))
sketch1.addConstraint(Sketcher.Constraint("Equal", 40, 42))
sketch1.addConstraint(Sketcher.Constraint("Equal", 42, 44))
sketch1.addConstraint(Sketcher.Constraint("Equal", 36, 46))
sketch1.addConstraint(Sketcher.Constraint("Equal", 34, 48))
sketch1.addConstraint(Sketcher.Constraint("Equal", 32, 50))
sketch1.addConstraint(Sketcher.Constraint("Equal", 50, 52))
sketch1.addConstraint(Sketcher.Constraint("Equal", 48, 54))
sketch1.addConstraint(Sketcher.Constraint("Equal", 46, 56))
sketch1.addConstraint(Sketcher.Constraint("Equal", 44, 58))
sketch1.addConstraint(Sketcher.Constraint("Equal", 58, 60))
sketch1.addConstraint(Sketcher.Constraint("Equal", 41, 61))
sketch1.addConstraint(Sketcher.Constraint("Equal", 60, 62))
sketch1.addConstraint(Sketcher.Constraint("Equal", 62, 64))
sketch1.addConstraint(Sketcher.Constraint("Equal", 56, 66))
sketch1.addConstraint(Sketcher.Constraint("Equal", 54, 68))
sketch1.addConstraint(Sketcher.Constraint("Equal", 52, 70))
sketch1.addConstraint(Sketcher.Constraint("Equal", 70, 72))
sketch1.addConstraint(Sketcher.Constraint("Equal", 68, 74))
sketch1.addConstraint(Sketcher.Constraint("Equal", 66, 76))
sketch1.addConstraint(Sketcher.Constraint("Equal", 64, 78))
sketch1.addConstraint(Sketcher.Constraint("Symmetric", 0, 3, 40, 3, -1, 1))
sketch1.addConstraint(Sketcher.Constraint("Symmetric", 1, 3, 41, 3, -1, 1))
sketch1.addConstraint(Sketcher.Constraint("Symmetric", 2, 3, 42, 3, -1, 1))
sketch1.addConstraint(Sketcher.Constraint("Symmetric", 4, 3, 44, 3, -1, 1))
sketch1.addConstraint(Sketcher.Constraint("Symmetric", 6, 3, 46, 3, -1, 1))
sketch1.addConstraint(Sketcher.Constraint("Symmetric", 10, 3, 50, 3, -1, 1))
sketch1.addConstraint(Sketcher.Constraint("Symmetric", 14, 3, 54, 3, -1, 1))
sketch1.addConstraint(Sketcher.Constraint("Symmetric", 18, 3, 58, 3, -1, 1))
sketch1.addConstraint(Sketcher.Constraint("Symmetric", 20, 3, 60, 3, -1, 1))
sketch1.addConstraint(Sketcher.Constraint("Symmetric", 21, 3, 61, 3, -1, 1))
sketch1.addConstraint(Sketcher.Constraint("Symmetric", 22, 3, 62, 3, -1, 1))
sketch1.addConstraint(Sketcher.Constraint("Symmetric", 24, 3, 64, 3, -1, 1))
sketch1.addConstraint(Sketcher.Constraint("Symmetric", 26, 3, 66, 3, -1, 1))
sketch1.addConstraint(Sketcher.Constraint("Symmetric", 30, 3, 70, 3, -1, 1))
sketch1.addConstraint(Sketcher.Constraint("Symmetric", 34, 3, 74, 3, -1, 1))
sketch1.addConstraint(Sketcher.Constraint("Symmetric", 38, 3, 78, 3, -1, 1))
sketch1.addConstraint(Sketcher.Constraint("Symmetric", 8, 3, 14, 3, -2))
sketch1.addConstraint(Sketcher.Constraint("Symmetric", 4, 3, 18, 3, -2))
sketch1.addConstraint(Sketcher.Constraint("Symmetric", 2, 3, 20, 3, -2))
sketch1.addConstraint(Sketcher.Constraint("Symmetric", 1, 3, 21, 3, -2))
sketch1.addConstraint(Sketcher.Constraint("Symmetric", 0, 3, 22, 3, -2))
sketch1.addConstraint(Sketcher.Constraint("Symmetric", 38, 3, 64, 3, -2))
sketch1.addConstraint(Sketcher.Constraint("Symmetric", 36, 3, 66, 3, -2))
sketch1.addConstraint(Sketcher.Constraint("Symmetric", 49, 2, 52, 1, -2))
sketch1.addConstraint(Sketcher.Constraint("Symmetric", 33, 2, 68, 1, -2))
sketch1.addConstraint(Sketcher.Constraint("Symmetric", 29, 2, 72, 1, -2))
sketch1.addConstraint(Sketcher.Constraint("Perpendicular", 9, 13))
sketch1.addConstraint(Sketcher.Constraint("Parallel", 13, 29))
sketch1.addConstraint(Sketcher.Constraint("Perpendicular", 29, 33))
sketch1.addConstraint(Sketcher.Constraint("Horizontal", 2, 3, 4, 3))
sketch1.addConstraint(Sketcher.Constraint("Horizontal", 26, 3, 76, 3))
sketch1.addConstraint(Sketcher.Constraint("Horizontal", 20, 3, 1, 2))
sketch1.addConstraint(Sketcher.Constraint("Horizontal", 1, 2, 2, 1))
sketch1.addConstraint(Sketcher.Constraint("Horizontal", 3, 2, 4, 1))
sketch1.addConstraint(Sketcher.Constraint("Horizontal", 17, 2, 18, 1))
sketch1.addConstraint(Sketcher.Constraint("Horizontal", 41, 2, 42, 1))
sketch1.addConstraint(Sketcher.Constraint("Horizontal", 57, 2, 58, 1))
sketch1.addConstraint(Sketcher.Constraint("Vertical", 22, 3, 24, 3))
sketch1.addConstraint(Sketcher.Constraint("Vertical", 16, 3, 46, 3))
sketch1.addConstraint(Sketcher.Constraint("Vertical", 6, 3, 56, 3))
sketch1.addConstraint(Sketcher.Constraint("Vertical", 78, 3, 0, 1))
sketch1.addConstraint(Sketcher.Constraint("Vertical", 21, 2, 22, 1))
sketch1.addConstraint(Sketcher.Constraint("Vertical", 23, 2, 24, 1))
sketch1.addConstraint(Sketcher.Constraint("Vertical", 37, 2, 38, 1))
sketch1.addConstraint(Sketcher.Constraint("Vertical", 61, 2, 62, 1))
sketch1.addConstraint(Sketcher.Constraint("Vertical", 77, 2, 78, 1))
sketch1.addConstraint(Sketcher.Constraint("Equal", 59, 23))
sketch1.addConstraint(Sketcher.Constraint("Equal", 57, 25))
sketch1.addConstraint(Sketcher.Constraint("Equal", 55, 27))
sketch1.addConstraint(Sketcher.Constraint("Equal", 51, 31))
sketch1.addConstraint(Sketcher.Constraint("Equal", 13, 29))
sketch1.addConstraint(Sketcher.Constraint("Radius", 0, Q("0.02 in")))
sketch1.addConstraint(Sketcher.Constraint("Radius", 8, Q("0.04 in")))
sketch1.addConstraint(Sketcher.Constraint("Diameter", 80, Q("0.205 in")))
sketch1.addConstraint(Sketcher.Constraint("Radius", 1, Q("0.083 in")))
sketch1.addConstraint(Sketcher.Constraint("Radius", 10, Q("0.125 in")))
sketch1.addConstraint(Sketcher.Constraint("DistanceX", 0, 3, -1, 1, Q("0.5 in")))
sketch1.addConstraint(Sketcher.Constraint("DistanceY", 2, 3, -1, 1, Q("0.5 in")))
sketch1.addConstraint(Sketcher.Constraint("Radius", 6, Q("0.0435 in")))
sketch1.addConstraint(Sketcher.Constraint("DistanceX", 11, 1, 11, 2, Q("0.1274 in")))
sketch1.addConstraint(Sketcher.Constraint("DistanceY", 0, 3, -1, 1, Q("0.396 in")))
sketch1.addConstraint(Sketcher.Constraint("DistanceX", 6, 3, -1, 1, Q("0.171 in")))
sketch1.addConstraint(Sketcher.Constraint("DistanceY", 10, 3, -1, 1, Q("0.302 in")))
sketch1.addConstraint(Sketcher.Constraint("DistanceX", 3, 1, 3, 2, Q("3.2173 mm")))
pad1 = body.newObject("PartDesign::Pad", "Pad")
pad1.Profile = sketch1
pad1.Length = Q("1 in")

doc.recompute()
